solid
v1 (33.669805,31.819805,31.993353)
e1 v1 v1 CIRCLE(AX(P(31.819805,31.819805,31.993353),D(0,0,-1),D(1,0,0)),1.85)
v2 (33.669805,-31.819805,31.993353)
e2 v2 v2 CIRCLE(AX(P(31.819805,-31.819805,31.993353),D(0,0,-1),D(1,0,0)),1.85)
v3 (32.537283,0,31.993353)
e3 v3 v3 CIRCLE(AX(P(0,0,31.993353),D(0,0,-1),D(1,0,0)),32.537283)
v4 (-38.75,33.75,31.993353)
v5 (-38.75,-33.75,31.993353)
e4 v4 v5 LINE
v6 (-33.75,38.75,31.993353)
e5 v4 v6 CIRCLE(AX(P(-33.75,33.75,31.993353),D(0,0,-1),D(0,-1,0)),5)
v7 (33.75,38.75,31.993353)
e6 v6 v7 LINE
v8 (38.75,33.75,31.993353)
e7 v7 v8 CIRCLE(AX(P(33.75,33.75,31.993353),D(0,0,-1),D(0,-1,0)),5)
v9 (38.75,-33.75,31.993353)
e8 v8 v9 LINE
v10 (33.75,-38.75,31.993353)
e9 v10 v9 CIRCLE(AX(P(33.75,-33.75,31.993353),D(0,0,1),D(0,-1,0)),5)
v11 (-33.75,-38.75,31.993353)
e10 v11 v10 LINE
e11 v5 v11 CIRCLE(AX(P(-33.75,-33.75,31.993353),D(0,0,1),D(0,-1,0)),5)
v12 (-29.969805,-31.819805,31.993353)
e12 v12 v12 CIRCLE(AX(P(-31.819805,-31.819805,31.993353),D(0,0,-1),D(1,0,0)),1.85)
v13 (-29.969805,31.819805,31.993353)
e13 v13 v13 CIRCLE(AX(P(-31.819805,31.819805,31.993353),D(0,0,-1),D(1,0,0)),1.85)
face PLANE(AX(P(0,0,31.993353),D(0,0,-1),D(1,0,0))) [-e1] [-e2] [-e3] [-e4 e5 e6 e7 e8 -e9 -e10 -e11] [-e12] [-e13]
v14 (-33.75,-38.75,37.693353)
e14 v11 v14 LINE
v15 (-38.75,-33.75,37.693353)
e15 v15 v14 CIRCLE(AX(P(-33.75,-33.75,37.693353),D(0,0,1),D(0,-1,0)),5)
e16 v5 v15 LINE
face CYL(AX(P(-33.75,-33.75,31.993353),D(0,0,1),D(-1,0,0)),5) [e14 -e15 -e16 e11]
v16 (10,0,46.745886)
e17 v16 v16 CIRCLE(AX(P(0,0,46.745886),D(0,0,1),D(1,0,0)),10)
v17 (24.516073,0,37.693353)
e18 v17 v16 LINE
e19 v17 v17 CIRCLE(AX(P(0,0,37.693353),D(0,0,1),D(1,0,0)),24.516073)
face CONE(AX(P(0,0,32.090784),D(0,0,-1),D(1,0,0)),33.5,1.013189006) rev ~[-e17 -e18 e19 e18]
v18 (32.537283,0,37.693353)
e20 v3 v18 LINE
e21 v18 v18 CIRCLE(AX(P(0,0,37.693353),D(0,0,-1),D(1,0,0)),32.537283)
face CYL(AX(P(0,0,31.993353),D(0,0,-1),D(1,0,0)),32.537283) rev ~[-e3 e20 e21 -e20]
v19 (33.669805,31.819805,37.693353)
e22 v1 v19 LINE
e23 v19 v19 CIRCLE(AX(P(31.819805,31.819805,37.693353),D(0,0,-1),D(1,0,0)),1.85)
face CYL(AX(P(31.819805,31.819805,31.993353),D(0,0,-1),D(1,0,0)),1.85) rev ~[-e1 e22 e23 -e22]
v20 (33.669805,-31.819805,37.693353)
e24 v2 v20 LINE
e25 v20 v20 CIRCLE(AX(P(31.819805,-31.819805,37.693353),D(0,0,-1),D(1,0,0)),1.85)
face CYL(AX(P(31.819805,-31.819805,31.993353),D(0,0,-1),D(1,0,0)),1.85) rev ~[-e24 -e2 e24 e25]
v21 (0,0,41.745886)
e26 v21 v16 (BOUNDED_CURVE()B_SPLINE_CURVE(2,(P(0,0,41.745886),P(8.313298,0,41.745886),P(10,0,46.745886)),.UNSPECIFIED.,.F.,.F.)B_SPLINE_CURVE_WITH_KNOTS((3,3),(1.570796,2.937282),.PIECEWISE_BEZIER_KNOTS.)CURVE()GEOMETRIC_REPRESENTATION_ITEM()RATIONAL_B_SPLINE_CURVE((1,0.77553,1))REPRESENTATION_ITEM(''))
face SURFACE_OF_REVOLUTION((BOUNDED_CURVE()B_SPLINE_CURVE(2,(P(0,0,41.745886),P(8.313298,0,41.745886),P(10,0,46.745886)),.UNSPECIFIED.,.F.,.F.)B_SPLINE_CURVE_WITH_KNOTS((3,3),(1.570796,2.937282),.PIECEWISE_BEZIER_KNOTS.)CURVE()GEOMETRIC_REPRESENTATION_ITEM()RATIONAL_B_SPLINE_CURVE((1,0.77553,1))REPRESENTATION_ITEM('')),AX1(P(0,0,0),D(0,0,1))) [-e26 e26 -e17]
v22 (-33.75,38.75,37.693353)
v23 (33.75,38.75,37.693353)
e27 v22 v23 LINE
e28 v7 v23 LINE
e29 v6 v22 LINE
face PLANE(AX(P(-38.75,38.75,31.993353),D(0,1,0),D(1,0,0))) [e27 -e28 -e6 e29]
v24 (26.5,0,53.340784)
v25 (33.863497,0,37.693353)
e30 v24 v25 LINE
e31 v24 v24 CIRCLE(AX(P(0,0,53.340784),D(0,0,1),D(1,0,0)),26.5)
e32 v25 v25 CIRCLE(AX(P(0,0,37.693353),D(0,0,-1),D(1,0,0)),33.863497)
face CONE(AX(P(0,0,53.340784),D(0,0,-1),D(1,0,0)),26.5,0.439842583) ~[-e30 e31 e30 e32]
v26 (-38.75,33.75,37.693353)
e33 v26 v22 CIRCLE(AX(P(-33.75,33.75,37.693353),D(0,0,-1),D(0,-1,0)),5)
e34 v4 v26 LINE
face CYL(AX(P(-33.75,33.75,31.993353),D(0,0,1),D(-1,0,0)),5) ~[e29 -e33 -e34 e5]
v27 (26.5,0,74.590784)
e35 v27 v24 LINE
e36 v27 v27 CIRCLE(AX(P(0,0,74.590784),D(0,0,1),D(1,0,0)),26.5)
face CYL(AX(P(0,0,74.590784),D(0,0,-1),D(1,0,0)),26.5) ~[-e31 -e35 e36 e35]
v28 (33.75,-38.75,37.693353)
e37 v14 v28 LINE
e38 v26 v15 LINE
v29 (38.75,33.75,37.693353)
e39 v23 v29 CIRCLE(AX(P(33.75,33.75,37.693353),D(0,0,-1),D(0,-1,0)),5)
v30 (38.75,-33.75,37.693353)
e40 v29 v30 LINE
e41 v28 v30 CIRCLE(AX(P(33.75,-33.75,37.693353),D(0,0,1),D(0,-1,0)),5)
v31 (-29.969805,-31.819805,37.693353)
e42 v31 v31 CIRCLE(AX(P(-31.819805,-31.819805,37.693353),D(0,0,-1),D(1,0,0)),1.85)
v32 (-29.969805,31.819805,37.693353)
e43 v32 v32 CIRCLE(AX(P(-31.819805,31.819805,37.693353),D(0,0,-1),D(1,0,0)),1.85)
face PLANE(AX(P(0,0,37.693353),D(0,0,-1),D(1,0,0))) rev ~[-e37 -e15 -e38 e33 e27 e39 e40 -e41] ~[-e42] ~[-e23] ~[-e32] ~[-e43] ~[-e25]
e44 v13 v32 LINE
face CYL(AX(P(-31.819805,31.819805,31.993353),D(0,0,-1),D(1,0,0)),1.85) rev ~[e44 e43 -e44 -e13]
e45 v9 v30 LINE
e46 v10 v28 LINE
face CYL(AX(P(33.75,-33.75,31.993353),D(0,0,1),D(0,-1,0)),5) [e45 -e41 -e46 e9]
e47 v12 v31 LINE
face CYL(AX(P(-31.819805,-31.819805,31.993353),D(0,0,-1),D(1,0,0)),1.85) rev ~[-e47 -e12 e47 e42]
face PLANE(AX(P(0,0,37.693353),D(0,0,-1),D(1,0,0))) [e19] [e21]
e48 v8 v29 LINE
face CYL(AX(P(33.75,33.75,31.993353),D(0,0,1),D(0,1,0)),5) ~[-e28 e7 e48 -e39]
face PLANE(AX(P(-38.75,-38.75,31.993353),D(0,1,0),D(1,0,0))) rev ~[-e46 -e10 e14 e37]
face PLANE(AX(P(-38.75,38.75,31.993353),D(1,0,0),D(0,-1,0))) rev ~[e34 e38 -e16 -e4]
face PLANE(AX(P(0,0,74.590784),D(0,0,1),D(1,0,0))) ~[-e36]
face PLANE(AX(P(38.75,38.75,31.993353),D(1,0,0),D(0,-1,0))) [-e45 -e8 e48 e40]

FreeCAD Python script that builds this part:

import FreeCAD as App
import Part
import Sketcher
Q = App.Units.Quantity


def edges_at(feature, points):
    """Names of the edges that pass closest to the given points."""
    edges = feature.Shape.Edges
    near = lambda p: min(range(len(edges)), key=lambda i: edges[i].distToShape(Part.Vertex(*p))[0])
    return sorted({f"Edge{near(p) + 1}" for p in points})


def add_polygon(sketch, points):
    """Adds a closed chain of lines whose ends are joined by coincident constraints."""
    first, n = sketch.GeometryCount, len(points)
    for a, b in zip(points, points[1:] + points[:1]):
        sketch.addGeometry(Part.LineSegment(App.Vector(*a, 0), App.Vector(*b, 0)), False)
    for i in range(n):
        sketch.addConstraint(Sketcher.Constraint("Coincident", first + i, 2, first + (i + 1) % n, 1))

doc = App.newDocument("Part")
body = doc.addObject("PartDesign::Body", "Body")

# Sketch on XZ plane
sketch1 = doc.addObject("Sketcher::SketchObject", "Sketch")
body.addObject(sketch1)
sketch1.AttachmentSupport = (doc.XZ_Plane, [""])
sketch1.MapMode = "FlatFace"
sketch1.addGeometry(Part.LineSegment(App.Vector(0, 74.590784, 0), App.Vector(0, 41.745886, 0)), False)
sketch1.addGeometry(Part.BSplineCurve([App.Vector(0, 41.745886, 0), App.Vector(8.313298, 41.745886, 0), App.Vector(10, 46.745886, 0)], [3, 3], [1.570796, 2.937282], False, 2, [1, 0.77553, 1], False), False)
sketch1.addGeometry(Part.LineSegment(App.Vector(10, 46.745886, 0), App.Vector(33.5, 32.090784, 0)), False)
sketch1.addGeometry(Part.LineSegment(App.Vector(33.5, 32.090784, 0), App.Vector(36.5, 32.090784, 0)), False)
sketch1.addGeometry(Part.LineSegment(App.Vector(36.5, 32.090784, 0), App.Vector(26.5, 53.340784, 0)), False)
sketch1.addGeometry(Part.LineSegment(App.Vector(26.5, 53.340784, 0), App.Vector(26.5, 74.590784, 0)), False)
sketch1.addGeometry(Part.LineSegment(App.Vector(26.5, 74.590784, 0), App.Vector(0, 74.590784, 0)), False)
sketch1.addConstraint(Sketcher.Constraint("Block", 1))
sketch1.addConstraint(Sketcher.Constraint("Coincident", 0, 2, 1, 1))
sketch1.addConstraint(Sketcher.Constraint("Coincident", 1, 2, 2, 1))
sketch1.addConstraint(Sketcher.Constraint("Coincident", 2, 2, 3, 1))
sketch1.addConstraint(Sketcher.Constraint("Coincident", 3, 2, 4, 1))
sketch1.addConstraint(Sketcher.Constraint("Coincident", 4, 2, 5, 1))
sketch1.addConstraint(Sketcher.Constraint("Coincident", 5, 2, 6, 1))
sketch1.addConstraint(Sketcher.Constraint("Coincident", 6, 2, 0, 1))
sketch1.addConstraint(Sketcher.Constraint("Vertical", 0))
sketch1.addConstraint(Sketcher.Constraint("Horizontal", 3))
sketch1.addConstraint(Sketcher.Constraint("Vertical", 5))
sketch1.addConstraint(Sketcher.Constraint("Horizontal", 6))
sketch1.addConstraint(Sketcher.Constraint("DistanceX", 3, 1, 3, 2, Q("3 mm")))
sketch1.addConstraint(Sketcher.Constraint("DistanceX", 6, 2, 6, 1, Q("26.5 mm")))
sketch1.addConstraint(Sketcher.Constraint("DistanceX", 4, 2, 2, 2, Q("7 mm")))
sketch1.addConstraint(Sketcher.Constraint("DistanceY", 5, 1, 5, 2, Q("21.25 mm")))
sketch1.addConstraint(Sketcher.Constraint("DistanceY", 2, 2, 5, 2, Q("42.5 mm")))
sketch1.addConstraint(Sketcher.Constraint("DistanceY", 0, 2, 0, 1, Q("32.844898 mm")))
revolution = doc.addObject("PartDesign::Revolution", "Revolution")
body.addObject(revolution)
revolution.Profile = sketch1
revolution.ReferenceAxis = (sketch1, ["V_Axis"])
revolution.Angle = 360

# Sketch on XY plane
sketch2 = doc.addObject("Sketcher::SketchObject", "Sketch001")
body.addObject(sketch2)
sketch2.AttachmentSupport = (doc.XY_Plane, [""])
sketch2.MapMode = "FlatFace"
sketch2.AttachmentOffset = App.Placement(App.Vector(0, 0, 31.993353), App.Rotation())
add_polygon(sketch2, [(-38.8, -38.8), (-38.8, 38.8), (38.8, 38.8), (38.8, -38.8)])  # lines 0-3
sketch2.addGeometry(Part.Circle(App.Vector(-31.8, 31.8, 0), App.Vector(0, 0, 1), 1.9), False)  # 4
sketch2.addGeometry(Part.Circle(App.Vector(31.8, 31.8, 0), App.Vector(0, 0, 1), 1.9), False)  # 5
sketch2.addGeometry(Part.Circle(App.Vector(-31.8, -31.8, 0), App.Vector(0, 0, 1), 1.9), False)  # 6
sketch2.addGeometry(Part.Circle(App.Vector(31.8, -31.8, 0), App.Vector(0, 0, 1), 1.9), False)  # 7
sketch2.addConstraint(Sketcher.Constraint("Vertical", 0))
sketch2.addConstraint(Sketcher.Constraint("Horizontal", 1))
sketch2.addConstraint(Sketcher.Constraint("Vertical", 2))
sketch2.addConstraint(Sketcher.Constraint("Horizontal", 3))
sketch2.addConstraint(Sketcher.Constraint("Equal", 4, 5))
sketch2.addConstraint(Sketcher.Constraint("Equal", 5, 6))
sketch2.addConstraint(Sketcher.Constraint("Equal", 6, 7))
sketch2.addConstraint(Sketcher.Constraint("Symmetric", 5, 3, 6, 3, -1, 1))
sketch2.addConstraint(Sketcher.Constraint("Symmetric", 4, 3, 7, 3, -1, 1))
sketch2.addConstraint(Sketcher.Constraint("Symmetric", 0, 2, 2, 2, -1, 1))
sketch2.addConstraint(Sketcher.Constraint("Symmetric", 4, 3, 5, 3, -2))
sketch2.addConstraint(Sketcher.Constraint("Equal", 3, 0))
sketch2.addConstraint(Sketcher.Constraint("Diameter", 4, Q("3.7 mm")))
sketch2.addConstraint(Sketcher.Constraint("DistanceX", 1, 1, 1, 2, Q("77.5 mm")))
sketch2.addConstraint(Sketcher.Constraint("DistanceX", 4, 3, 5, 3, Q("63.63961 mm")))
sketch2.addConstraint(Sketcher.Constraint("DistanceY", 6, 3, 4, 3, Q("63.63961 mm")))
pad1 = doc.addObject("PartDesign::Pad", "Pad")
body.addObject(pad1)
pad1.Profile = sketch2
pad1.Length = 5.7
doc.recompute()

fillet = doc.addObject("PartDesign::Fillet", "Fillet")
body.addObject(fillet)
fillet.Base = (pad1, edges_at(pad1, [
    (38.75, -38.75, 34.843),
    (-38.75, -38.75, 34.843),
    (-38.75, 38.75, 34.843),
    (38.75, 38.75, 34.843),
]))
fillet.Radius = 5

# Sketch on XY plane
sketch3 = doc.addObject("Sketcher::SketchObject", "Sketch002")
body.addObject(sketch3)
sketch3.AttachmentSupport = (doc.XY_Plane, [""])
sketch3.MapMode = "FlatFace"
sketch3.AttachmentOffset = App.Placement(App.Vector(0, 0, 31.993353), App.Rotation())
sketch3.addGeometry(Part.Circle(App.Vector(0, 0, 0), App.Vector(0, 0, 1), 33), False)
sketch3.addConstraint(Sketcher.Constraint("Coincident", 0, 3, -1, 1))
sketch3.addConstraint(Sketcher.Constraint("Diameter", 0, Q("65.074566 mm")))
pocket1 = doc.addObject("PartDesign::Pocket", "Pocket")
body.addObject(pocket1)
pocket1.Profile = sketch3
pocket1.Length = 5.7
pocket1.Reversed = True

doc.recompute()
